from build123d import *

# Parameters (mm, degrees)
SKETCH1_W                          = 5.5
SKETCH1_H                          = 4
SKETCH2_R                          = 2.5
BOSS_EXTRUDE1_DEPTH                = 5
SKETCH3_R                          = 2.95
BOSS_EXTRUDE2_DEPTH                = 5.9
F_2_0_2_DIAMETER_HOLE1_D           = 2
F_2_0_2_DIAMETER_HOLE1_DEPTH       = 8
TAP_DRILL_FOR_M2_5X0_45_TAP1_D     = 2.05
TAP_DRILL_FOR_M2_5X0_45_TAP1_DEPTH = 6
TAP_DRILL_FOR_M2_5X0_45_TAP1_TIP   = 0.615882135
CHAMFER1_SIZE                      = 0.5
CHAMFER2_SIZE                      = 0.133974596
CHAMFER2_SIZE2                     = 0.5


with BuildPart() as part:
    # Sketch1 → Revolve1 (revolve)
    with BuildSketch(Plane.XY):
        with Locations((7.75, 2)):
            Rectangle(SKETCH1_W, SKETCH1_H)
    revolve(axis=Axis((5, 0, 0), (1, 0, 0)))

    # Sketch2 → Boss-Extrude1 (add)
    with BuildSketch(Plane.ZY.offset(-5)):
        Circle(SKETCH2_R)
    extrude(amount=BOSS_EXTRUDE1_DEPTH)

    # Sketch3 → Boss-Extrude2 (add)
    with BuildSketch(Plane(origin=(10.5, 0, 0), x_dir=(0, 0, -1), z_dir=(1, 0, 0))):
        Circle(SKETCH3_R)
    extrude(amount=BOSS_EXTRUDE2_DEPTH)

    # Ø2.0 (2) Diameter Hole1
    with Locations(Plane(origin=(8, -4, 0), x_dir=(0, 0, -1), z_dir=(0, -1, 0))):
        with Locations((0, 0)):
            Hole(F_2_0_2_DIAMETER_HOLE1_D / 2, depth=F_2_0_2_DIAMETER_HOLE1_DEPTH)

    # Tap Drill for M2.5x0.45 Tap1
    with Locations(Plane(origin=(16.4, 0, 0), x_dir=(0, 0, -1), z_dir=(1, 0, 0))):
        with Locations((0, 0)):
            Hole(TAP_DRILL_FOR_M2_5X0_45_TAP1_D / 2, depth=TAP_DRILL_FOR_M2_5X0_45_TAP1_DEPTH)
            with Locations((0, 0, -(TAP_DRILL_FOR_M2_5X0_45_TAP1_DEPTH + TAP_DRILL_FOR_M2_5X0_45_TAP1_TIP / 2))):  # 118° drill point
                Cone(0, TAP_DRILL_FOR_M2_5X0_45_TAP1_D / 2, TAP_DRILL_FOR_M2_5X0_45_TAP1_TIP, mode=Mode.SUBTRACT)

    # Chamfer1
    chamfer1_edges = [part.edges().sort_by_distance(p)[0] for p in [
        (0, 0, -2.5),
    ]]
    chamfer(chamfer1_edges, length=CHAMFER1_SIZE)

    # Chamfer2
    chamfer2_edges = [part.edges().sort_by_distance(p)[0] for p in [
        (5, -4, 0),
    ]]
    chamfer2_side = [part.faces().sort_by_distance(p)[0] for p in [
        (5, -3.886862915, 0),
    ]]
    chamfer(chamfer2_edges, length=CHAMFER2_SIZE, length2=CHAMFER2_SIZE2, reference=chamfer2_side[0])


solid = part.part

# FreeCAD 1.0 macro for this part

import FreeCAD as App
import Part
import Sketcher
from FreeCAD import Vector
Q = App.Units.Quantity


def edges_at(feature, points):
    """Names of the edges that pass closest to the given points."""
    edges = feature.Shape.Edges
    near = lambda p: min(range(len(edges)), key=lambda i: edges[i].distToShape(Part.Vertex(*p))[0])
    return sorted({f"Edge{near(p) + 1}" for p in points})


def add_polygon(sketch, points):
    """Adds a closed chain of lines whose ends are joined by coincident constraints."""
    first, n = sketch.GeometryCount, len(points)
    for a, b in zip(points, points[1:] + points[:1]):
        sketch.addGeometry(Part.LineSegment(App.Vector(*a, 0), App.Vector(*b, 0)), False)
    for i in range(n):
        sketch.addConstraint(Sketcher.Constraint("Coincident", first + i, 2, first + (i + 1) % n, 1))

doc = App.newDocument("Part")
body = doc.addObject("PartDesign::Body", "Body")

sketch1 = body.newObject("Sketcher::SketchObject", "Sketch")
sketch1.AttachmentSupport = (doc.getObject("XY_Plane"), [""])
sketch1.MapMode = "FlatFace"
add_polygon(sketch1, [(5, 4), (5, 0), (10.5, 0), (10.5, 4)])
sketch1.addConstraint([
    Sketcher.Constraint("Vertical", 0),
    Sketcher.Constraint("Horizontal", 1),
    Sketcher.Constraint("Vertical", 2),
    Sketcher.Constraint("Horizontal", 3),
    Sketcher.Constraint("PointOnObject", 0, 2, -1),
    Sketcher.Constraint("DistanceY", 0, 2, 0, 1, Q("4 mm")),
    Sketcher.Constraint("DistanceX", 1, 1, 1, 2, Q("5.5 mm")),
    Sketcher.Constraint("DistanceX", -1, 1, 0, 2, Q("5 mm")),
])
revolution = body.newObject("PartDesign::Revolution", "Revolution")
revolution.Profile = sketch1
revolution.ReferenceAxis = (sketch1, ["H_Axis"])
revolution.Angle = 360

sketch2 = body.newObject("Sketcher::SketchObject", "Sketch001")
sketch2.AttachmentSupport = (doc.getObject("YZ_Plane"), [""])
sketch2.MapMode = "FlatFace"
sketch2.AttachmentOffset = App.Placement(Vector(0, 0, 5), App.Rotation())
sketch2.addGeometry(Part.Circle(Vector(0, 0, 0), Vector(0, 0, 1), 2.5), False)
sketch2.addConstraint([
    Sketcher.Constraint("Coincident", 0, 3, -1, 1),
    Sketcher.Constraint("Diameter", 0, Q("5 mm")),
])
pad1 = body.newObject("PartDesign::Pad", "Pad")
pad1.Profile = sketch2
pad1.Length = 5
pad1.Reversed = True

sketch3 = body.newObject("Sketcher::SketchObject", "Sketch002")
sketch3.AttachmentSupport = (doc.getObject("YZ_Plane"), [""])
sketch3.MapMode = "FlatFace"
sketch3.AttachmentOffset = App.Placement(Vector(0, 0, 10.5), App.Rotation())
sketch3.addGeometry(Part.Circle(Vector(0, 0, 0), Vector(0, 0, 1), 3), False)
sketch3.addConstraint([
    Sketcher.Constraint("Coincident", 0, 3, -1, 1),
    Sketcher.Constraint("Diameter", 0, Q("5.9 mm")),
])
pad2 = body.newObject("PartDesign::Pad", "Pad001")
pad2.Profile = sketch3
pad2.Length = 5.9

sketch4 = body.newObject("Sketcher::SketchObject", "Sketch003")
sketch4.AttachmentSupport = (doc.getObject("XZ_Plane"), [""])
sketch4.MapMode = "FlatFace"
sketch4.AttachmentOffset = App.Placement(Vector(0, 0, 4), App.Rotation())
sketch4.addGeometry(Part.Circle(Vector(8, 0, 0), Vector(0, 0, 1), 1), False)
sketch4.addConstraint([
    Sketcher.Constraint("PointOnObject", 0, 3, -1),
    Sketcher.Constraint("Diameter", 0, Q("2 mm")),
    Sketcher.Constraint("DistanceX", -1, 1, 0, 3, Q("8 mm")),
])
doc.recompute()
hole = body.newObject("PartDesign::Hole", "Hole")
hole.Profile = sketch4
hole.ThreadType = "None"
hole.Diameter = 2
hole.DepthType = "Dimension"
hole.Depth = 8
hole.DrillPoint = "Flat"

sketch5 = body.newObject("Sketcher::SketchObject", "Sketch004")
sketch5.AttachmentSupport = (doc.getObject("YZ_Plane"), [""])
sketch5.MapMode = "FlatFace"
sketch5.AttachmentOffset = App.Placement(Vector(0, 0, 16.4), App.Rotation())
sketch5.addGeometry(Part.Circle(Vector(0, 0, 0), Vector(0, 0, 1), 1), False)
sketch5.addConstraint([
    Sketcher.Constraint("Coincident", 0, 3, -1, 1),
    Sketcher.Constraint("Diameter", 0, Q("2.05 mm")),
])
doc.recompute()
hole2 = body.newObject("PartDesign::Hole", "Hole001")
hole2.Profile = sketch5
hole2.ThreadType = "None"
hole2.Diameter = 2.05
hole2.DepthType = "Dimension"
hole2.Depth = 6
hole2.DrillPoint = "Angled"
hole2.DrillPointAngle = 118
doc.recompute()

chamfer = body.newObject("PartDesign::Chamfer", "Chamfer")
chamfer.Base = (hole2, edges_at(hole2, [(0, 0, -2.5)]))
chamfer.Size = 0.5
doc.recompute()

chamfer2 = body.newObject("PartDesign::Chamfer", "Chamfer001")
chamfer2.Base = (chamfer, edges_at(chamfer, [(5, -4, 0)]))
chamfer2.ChamferType = "Two distances"
chamfer2.Size = 0.133975
chamfer2.Size2 = 0.5

doc.recompute()
